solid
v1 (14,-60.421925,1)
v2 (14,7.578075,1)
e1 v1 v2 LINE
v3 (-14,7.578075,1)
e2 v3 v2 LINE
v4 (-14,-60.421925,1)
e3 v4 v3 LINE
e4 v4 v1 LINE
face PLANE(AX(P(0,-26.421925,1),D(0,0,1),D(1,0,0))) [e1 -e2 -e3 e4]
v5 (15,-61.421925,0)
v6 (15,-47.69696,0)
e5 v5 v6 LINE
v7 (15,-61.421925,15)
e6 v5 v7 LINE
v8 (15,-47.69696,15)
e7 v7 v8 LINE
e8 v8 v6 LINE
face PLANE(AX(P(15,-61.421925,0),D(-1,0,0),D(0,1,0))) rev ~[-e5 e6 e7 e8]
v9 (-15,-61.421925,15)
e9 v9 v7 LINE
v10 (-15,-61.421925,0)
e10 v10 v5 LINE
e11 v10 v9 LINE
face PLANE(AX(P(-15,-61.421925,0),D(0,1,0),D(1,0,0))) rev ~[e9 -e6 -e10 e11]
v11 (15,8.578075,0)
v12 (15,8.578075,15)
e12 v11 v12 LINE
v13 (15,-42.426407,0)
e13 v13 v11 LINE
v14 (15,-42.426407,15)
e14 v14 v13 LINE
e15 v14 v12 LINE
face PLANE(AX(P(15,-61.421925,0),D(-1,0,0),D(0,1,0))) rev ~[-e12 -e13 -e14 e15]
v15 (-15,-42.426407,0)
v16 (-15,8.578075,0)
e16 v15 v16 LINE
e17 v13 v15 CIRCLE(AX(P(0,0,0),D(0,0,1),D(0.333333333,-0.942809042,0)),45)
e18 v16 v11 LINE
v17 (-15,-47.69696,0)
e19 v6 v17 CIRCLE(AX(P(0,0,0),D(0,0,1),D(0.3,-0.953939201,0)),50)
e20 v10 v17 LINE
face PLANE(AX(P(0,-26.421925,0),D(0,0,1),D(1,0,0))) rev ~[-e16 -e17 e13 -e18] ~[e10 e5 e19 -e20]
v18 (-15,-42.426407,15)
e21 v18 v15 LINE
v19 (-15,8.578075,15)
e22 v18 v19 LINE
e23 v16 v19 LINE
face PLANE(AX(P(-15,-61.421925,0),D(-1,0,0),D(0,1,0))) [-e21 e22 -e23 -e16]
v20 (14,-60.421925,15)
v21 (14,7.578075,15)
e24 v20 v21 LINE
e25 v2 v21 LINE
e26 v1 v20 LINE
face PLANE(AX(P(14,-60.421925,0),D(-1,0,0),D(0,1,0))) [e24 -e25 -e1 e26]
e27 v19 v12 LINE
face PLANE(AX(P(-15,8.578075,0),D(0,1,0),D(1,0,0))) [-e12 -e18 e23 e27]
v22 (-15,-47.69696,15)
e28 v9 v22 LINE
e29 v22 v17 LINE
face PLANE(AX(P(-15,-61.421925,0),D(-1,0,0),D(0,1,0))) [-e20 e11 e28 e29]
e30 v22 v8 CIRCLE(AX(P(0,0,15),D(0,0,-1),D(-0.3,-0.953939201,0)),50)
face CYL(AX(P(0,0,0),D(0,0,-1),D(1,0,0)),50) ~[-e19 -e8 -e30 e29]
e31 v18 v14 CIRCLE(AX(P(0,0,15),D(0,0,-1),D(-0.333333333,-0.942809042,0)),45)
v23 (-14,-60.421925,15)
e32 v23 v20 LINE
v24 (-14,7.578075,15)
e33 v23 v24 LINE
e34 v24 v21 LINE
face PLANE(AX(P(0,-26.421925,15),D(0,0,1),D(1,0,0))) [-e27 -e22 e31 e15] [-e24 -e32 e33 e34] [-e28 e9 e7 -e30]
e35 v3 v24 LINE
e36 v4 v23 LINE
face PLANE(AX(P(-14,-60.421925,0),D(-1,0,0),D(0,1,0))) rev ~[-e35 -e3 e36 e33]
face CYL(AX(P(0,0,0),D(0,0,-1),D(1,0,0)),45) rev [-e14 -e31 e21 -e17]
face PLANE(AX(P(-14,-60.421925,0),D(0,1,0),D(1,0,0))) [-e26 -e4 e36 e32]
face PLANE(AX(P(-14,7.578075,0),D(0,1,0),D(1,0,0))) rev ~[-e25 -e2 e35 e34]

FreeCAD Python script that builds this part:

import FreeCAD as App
import Part
import Sketcher
Q = App.Units.Quantity


def add_polygon(sketch, points):
    """Adds a closed chain of lines whose ends are joined by coincident constraints."""
    first, n = sketch.GeometryCount, len(points)
    for a, b in zip(points, points[1:] + points[:1]):
        sketch.addGeometry(Part.LineSegment(App.Vector(*a, 0), App.Vector(*b, 0)), False)
    for i in range(n):
        sketch.addConstraint(Sketcher.Constraint("Coincident", first + i, 2, first + (i + 1) % n, 1))

doc = App.newDocument("Part")
params = doc.addObject("Spreadsheet::Sheet", "Params")
for row, (alias, value) in enumerate([
    ("sketch1_diameter", "100 mm"),
    ("sketch1_diameter2", "90 mm"),
    ("pad1_length", "15 mm"),
    ("sketch2_width", "30 mm"),
    ("sketch2_height", "15 mm"),
    ("pocket1_length", "50 mm"),
    ("sketch3_width", "30 mm"),
    ("sketch3_width2", "28 mm"),
    ("sketch3_height", "70 mm"),
    ("sketch3_height2", "68 mm"),
    ("pad2_length", "15 mm"),
    ("sketch4_width", "28 mm"),
    ("sketch4_height", "68 mm"),
    ("pad3_length", "1 mm"),
], start=1):
    params.set(f"A{row}", alias)
    params.set(f"B{row}", "=" + value)
    params.setAlias(f"B{row}", alias)

body = doc.addObject("PartDesign::Body", "Body")

sketch1 = doc.addObject("Sketcher::SketchObject", "Sketch")
body.addObject(sketch1)
sketch1.AttachmentSupport = (doc.XY_Plane, [""])
sketch1.MapMode = "FlatFace"
sketch1.addGeometry(Part.Circle(App.Vector(0, 0, 0), App.Vector(0, 0, 1), 50), False)
sketch1.addGeometry(Part.Circle(App.Vector(0, 0, 0), App.Vector(0, 0, 1), 45), False)
sketch1.addConstraint(Sketcher.Constraint("Coincident", 0, 3, -1, 1))
sketch1.addConstraint(Sketcher.Constraint("Coincident", 1, 3, -1, 1))
sketch1.addConstraint(Sketcher.Constraint("Diameter", 0, Q("100 mm")))
sketch1.addConstraint(Sketcher.Constraint("Diameter", 1, Q("90 mm")))
sketch1.setExpression("Constraints[2]", "Params.sketch1_diameter")
sketch1.setExpression("Constraints[3]", "Params.sketch1_diameter2")
pad1 = doc.addObject("PartDesign::Pad", "Pad")
body.addObject(pad1)
pad1.Profile = sketch1
pad1.setExpression("Length", "Params.pad1_length")

sketch2 = doc.addObject("Sketcher::SketchObject", "Sketch001")
body.addObject(sketch2)
sketch2.AttachmentSupport = (doc.XZ_Plane, [""])
sketch2.MapMode = "FlatFace"
add_polygon(sketch2, [(-15, 15), (-15, 0), (15, 0), (15, 15)])
sketch2.addConstraint(Sketcher.Constraint("Vertical", 0))
sketch2.addConstraint(Sketcher.Constraint("Horizontal", 1))
sketch2.addConstraint(Sketcher.Constraint("Vertical", 2))
sketch2.addConstraint(Sketcher.Constraint("Horizontal", 3))
sketch2.addConstraint(Sketcher.Constraint("Symmetric", 0, 2, 1, 2, -1, 1))
sketch2.addConstraint(Sketcher.Constraint("DistanceX", 1, 1, 1, 2, Q("30 mm")))
sketch2.addConstraint(Sketcher.Constraint("DistanceY", 0, 2, 0, 1, Q("15 mm")))
sketch2.setExpression("Constraints[9]", "Params.sketch2_width")
sketch2.setExpression("Constraints[10]", "Params.sketch2_height")
pocket1 = doc.addObject("PartDesign::Pocket", "Pocket")
body.addObject(pocket1)
pocket1.Profile = sketch2
pocket1.setExpression("Length", "Params.pocket1_length")
pocket1.Reversed = True

sketch3 = doc.addObject("Sketcher::SketchObject", "Sketch002")
body.addObject(sketch3)
sketch3.AttachmentSupport = (doc.XY_Plane, [""])
sketch3.MapMode = "FlatFace"
add_polygon(sketch3, [(-15, 9), (-15, -61), (15, -61), (15, 9)])
add_polygon(sketch3, [(14, -60), (-14, -60), (-14, 8), (14, 8)])
sketch3.addConstraint(Sketcher.Constraint("Vertical", 0))
sketch3.addConstraint(Sketcher.Constraint("Horizontal", 1))
sketch3.addConstraint(Sketcher.Constraint("Vertical", 2))
sketch3.addConstraint(Sketcher.Constraint("Horizontal", 3))
sketch3.addConstraint(Sketcher.Constraint("Horizontal", 4))
sketch3.addConstraint(Sketcher.Constraint("Vertical", 5))
sketch3.addConstraint(Sketcher.Constraint("Horizontal", 6))
sketch3.addConstraint(Sketcher.Constraint("Vertical", 7))
sketch3.addConstraint(Sketcher.Constraint("DistanceX", 1, 1, 1, 2, Q("30 mm")))
sketch3.addConstraint(Sketcher.Constraint("DistanceX", 4, 2, 4, 1, Q("28 mm")))
sketch3.addConstraint(Sketcher.Constraint("DistanceY", 0, 2, 0, 1, Q("70 mm")))
sketch3.addConstraint(Sketcher.Constraint("DistanceY", 5, 1, 5, 2, Q("68 mm")))
sketch3.addConstraint(Sketcher.Constraint("DistanceX", 0, 2, -1, 1, Q("15 mm")))
sketch3.addConstraint(Sketcher.Constraint("DistanceX", 4, 2, -1, 1, Q("14 mm")))
sketch3.addConstraint(Sketcher.Constraint("DistanceY", 0, 2, 4, 2, Q("1 mm")))
sketch3.addConstraint(Sketcher.Constraint("DistanceY", 0, 2, -1, 1, Q("61.421925 mm")))
sketch3.setExpression("Constraints[16]", "Params.sketch3_width")
sketch3.setExpression("Constraints[17]", "Params.sketch3_width2")
sketch3.setExpression("Constraints[18]", "Params.sketch3_height")
sketch3.setExpression("Constraints[19]", "Params.sketch3_height2")
pad2 = doc.addObject("PartDesign::Pad", "Pad001")
body.addObject(pad2)
pad2.Profile = sketch3
pad2.setExpression("Length", "Params.pad2_length")

sketch4 = doc.addObject("Sketcher::SketchObject", "Sketch003")
body.addObject(sketch4)
sketch4.AttachmentSupport = (doc.XY_Plane, [""])
sketch4.MapMode = "FlatFace"
add_polygon(sketch4, [(-14, 8), (-14, -60), (14, -60), (14, 8)])
sketch4.addConstraint(Sketcher.Constraint("Vertical", 0))
sketch4.addConstraint(Sketcher.Constraint("Horizontal", 1))
sketch4.addConstraint(Sketcher.Constraint("Vertical", 2))
sketch4.addConstraint(Sketcher.Constraint("Horizontal", 3))
sketch4.addConstraint(Sketcher.Constraint("DistanceX", 1, 1, 1, 2, Q("28 mm")))
sketch4.addConstraint(Sketcher.Constraint("DistanceY", 0, 2, 0, 1, Q("68 mm")))
sketch4.addConstraint(Sketcher.Constraint("DistanceX", 0, 2, -1, 1, Q("14 mm")))
sketch4.addConstraint(Sketcher.Constraint("DistanceY", 0, 2, -1, 1, Q("60.421925 mm")))
sketch4.setExpression("Constraints[8]", "Params.sketch4_width")
sketch4.setExpression("Constraints[9]", "Params.sketch4_height")
pad3 = doc.addObject("PartDesign::Pad", "Pad002")
body.addObject(pad3)
pad3.Profile = sketch4
pad3.setExpression("Length", "Params.pad3_length")

doc.recompute()
